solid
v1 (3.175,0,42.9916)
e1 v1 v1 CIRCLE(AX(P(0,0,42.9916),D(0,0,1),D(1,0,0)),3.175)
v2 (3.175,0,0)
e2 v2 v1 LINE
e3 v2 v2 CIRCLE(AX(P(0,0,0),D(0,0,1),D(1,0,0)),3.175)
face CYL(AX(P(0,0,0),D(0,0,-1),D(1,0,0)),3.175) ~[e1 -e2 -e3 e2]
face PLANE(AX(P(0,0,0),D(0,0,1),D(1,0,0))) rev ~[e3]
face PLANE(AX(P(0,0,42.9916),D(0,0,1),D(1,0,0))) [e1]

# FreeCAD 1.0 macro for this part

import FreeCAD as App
import Part
import Sketcher
Q = App.Units.Quantity

doc = App.newDocument("Part")
body = doc.addObject("PartDesign::Body", "Body")

# Sketch on XY plane
sketch1 = doc.addObject("Sketcher::SketchObject", "Sketch")
body.addObject(sketch1)
sketch1.AttachmentSupport = (doc.XY_Plane, [""])
sketch1.MapMode = "FlatFace"
sketch1.addGeometry(Part.Circle(App.Vector(0, 0, 0), App.Vector(0, 0, 1), 3.175), False)
sketch1.addConstraint(Sketcher.Constraint("Coincident", 0, 3, -1, 1))
sketch1.addConstraint(Sketcher.Constraint("Diameter", 0, Q("0.25 in")))
pad1 = doc.addObject("PartDesign::Pad", "Pad")
body.addObject(pad1)
pad1.Profile = sketch1
pad1.Length = 42.9916

doc.recompute()
